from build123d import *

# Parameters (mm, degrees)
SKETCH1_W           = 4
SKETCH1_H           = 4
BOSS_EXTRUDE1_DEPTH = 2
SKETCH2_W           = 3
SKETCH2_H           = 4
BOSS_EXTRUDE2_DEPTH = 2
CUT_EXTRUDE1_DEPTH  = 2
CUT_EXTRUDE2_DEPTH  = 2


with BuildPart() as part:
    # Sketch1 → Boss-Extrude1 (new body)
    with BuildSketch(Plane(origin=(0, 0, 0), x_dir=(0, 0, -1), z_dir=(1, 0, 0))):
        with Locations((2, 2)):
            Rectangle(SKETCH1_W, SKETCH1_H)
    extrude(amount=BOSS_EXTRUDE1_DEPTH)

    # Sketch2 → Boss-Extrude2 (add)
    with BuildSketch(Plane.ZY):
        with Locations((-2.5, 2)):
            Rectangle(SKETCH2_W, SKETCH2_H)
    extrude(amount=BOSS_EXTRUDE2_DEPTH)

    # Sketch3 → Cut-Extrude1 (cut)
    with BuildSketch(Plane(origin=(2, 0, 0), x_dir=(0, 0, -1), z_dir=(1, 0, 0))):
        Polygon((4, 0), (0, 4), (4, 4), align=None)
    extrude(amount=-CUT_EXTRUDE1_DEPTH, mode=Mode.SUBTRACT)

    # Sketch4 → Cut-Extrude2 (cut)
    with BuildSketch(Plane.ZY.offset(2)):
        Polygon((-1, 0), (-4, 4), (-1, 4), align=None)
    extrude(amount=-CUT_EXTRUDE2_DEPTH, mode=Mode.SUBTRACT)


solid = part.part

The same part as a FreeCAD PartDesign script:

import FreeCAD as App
import Part
import Sketcher

doc = App.newDocument("Part")
params = doc.addObject("Spreadsheet::Sheet", "Params")
for row, (alias, value) in enumerate([
    ("sketch1_width", "4 mm"),
    ("pad1_length", "2 mm"),
    ("sketch2_width", "4 mm"),
    ("sketch2_height", "3 mm"),
    ("pad2_length", "2 mm"),
    ("sketch3_width", "4 mm"),
    ("pocket1_length", "2 mm"),
    ("sketch4_width", "4 mm"),
    ("sketch4_height", "3 mm"),
    ("pocket2_length", "2 mm"),
], start=1):
    params.set(f"A{row}", alias)
    params.set(f"B{row}", "=" + value)
    params.setAlias(f"B{row}", alias)

body = doc.addObject("PartDesign::Body", "Body")

sketch1 = doc.addObject("Sketcher::SketchObject", "Sketch")
body.addObject(sketch1)
sketch1.AttachmentSupport = (doc.YZ_Plane, [""])
sketch1.MapMode = "FlatFace"
sketch1.addGeometry([
    Part.LineSegment(App.Vector(4, 0, 0), App.Vector(0, 0, 0)),
    Part.LineSegment(App.Vector(0, 0, 0), App.Vector(0, -4, 0)),
    Part.LineSegment(App.Vector(0, -4, 0), App.Vector(4, -4, 0)),
    Part.LineSegment(App.Vector(4, -4, 0), App.Vector(4, 0, 0)),
], False)
sketch1.addConstraint([
    Sketcher.Constraint("Coincident", 0, 2, 1, 1),
    Sketcher.Constraint("Coincident", 1, 2, 2, 1),
    Sketcher.Constraint("Coincident", 2, 2, 3, 1),
    Sketcher.Constraint("Coincident", 3, 2, 0, 1),
    Sketcher.Constraint("Horizontal", 0),
    Sketcher.Constraint("Vertical", 1),
    Sketcher.Constraint("Horizontal", 2),
    Sketcher.Constraint("Vertical", 3),
    Sketcher.Constraint("Coincident", 0, 2, -1, 1),
    Sketcher.Constraint("Equal", 2, 1),
    Sketcher.Constraint("DistanceX", 0, 2, 0, 1, 4.0),
])
sketch1.setExpression("Constraints[10]", "Params.sketch1_width")
pad1 = doc.addObject("PartDesign::Pad", "Pad")
body.addObject(pad1)
pad1.Profile = sketch1
pad1.setExpression("Length", "Params.pad1_length")

sketch2 = doc.addObject("Sketcher::SketchObject", "Sketch001")
body.addObject(sketch2)
sketch2.AttachmentSupport = (doc.YZ_Plane, [""])
sketch2.MapMode = "FlatFace"
sketch2.addGeometry([
    Part.LineSegment(App.Vector(4, -4, 0), App.Vector(0, -4, 0)),
    Part.LineSegment(App.Vector(0, -4, 0), App.Vector(0, -1, 0)),
    Part.LineSegment(App.Vector(0, -1, 0), App.Vector(4, -1, 0)),
    Part.LineSegment(App.Vector(4, -1, 0), App.Vector(4, -4, 0)),
], False)
sketch2.addConstraint([
    Sketcher.Constraint("Coincident", 0, 2, 1, 1),
    Sketcher.Constraint("Coincident", 1, 2, 2, 1),
    Sketcher.Constraint("Coincident", 2, 2, 3, 1),
    Sketcher.Constraint("Coincident", 3, 2, 0, 1),
    Sketcher.Constraint("Horizontal", 0),
    Sketcher.Constraint("Vertical", 1),
    Sketcher.Constraint("Horizontal", 2),
    Sketcher.Constraint("Vertical", 3),
    Sketcher.Constraint("PointOnObject", 0, 2, -2),
    Sketcher.Constraint("DistanceX", 0, 2, 0, 1, 4.0),
    Sketcher.Constraint("DistanceY", 1, 1, 1, 2, 3.0),
    Sketcher.Constraint("DistanceY", 0, 2, -1, 1, 4.0),
])
sketch2.setExpression("Constraints[9]", "Params.sketch2_width")
sketch2.setExpression("Constraints[10]", "Params.sketch2_height")
pad2 = doc.addObject("PartDesign::Pad", "Pad001")
body.addObject(pad2)
pad2.Profile = sketch2
pad2.setExpression("Length", "Params.pad2_length")
pad2.Reversed = True

sketch3 = doc.addObject("Sketcher::SketchObject", "Sketch002")
body.addObject(sketch3)
sketch3.AttachmentSupport = (doc.YZ_Plane, [""])
sketch3.MapMode = "FlatFace"
sketch3.AttachmentOffset = App.Placement(App.Vector(0, 0, 2), App.Rotation())
sketch3.addGeometry([
    Part.LineSegment(App.Vector(4, 0, 0), App.Vector(0, -4, 0)),
    Part.LineSegment(App.Vector(0, -4, 0), App.Vector(4, -4, 0)),
    Part.LineSegment(App.Vector(4, -4, 0), App.Vector(4, 0, 0)),
], False)
sketch3.addConstraint([
    Sketcher.Constraint("Coincident", 0, 2, 1, 1),
    Sketcher.Constraint("Coincident", 1, 2, 2, 1),
    Sketcher.Constraint("Coincident", 2, 2, 0, 1),
    Sketcher.Constraint("Horizontal", 1),
    Sketcher.Constraint("Vertical", 2),
    Sketcher.Constraint("PointOnObject", 0, 2, -2),
    Sketcher.Constraint("PointOnObject", 2, 2, -1),
    Sketcher.Constraint("Equal", 1, 2),
    Sketcher.Constraint("DistanceX", 1, 1, 1, 2, 4.0),
])
sketch3.setExpression("Constraints[8]", "Params.sketch3_width")
pocket1 = doc.addObject("PartDesign::Pocket", "Pocket")
body.addObject(pocket1)
pocket1.Profile = sketch3
pocket1.setExpression("Length", "Params.pocket1_length")

sketch4 = doc.addObject("Sketcher::SketchObject", "Sketch003")
body.addObject(sketch4)
sketch4.AttachmentSupport = (doc.YZ_Plane, [""])
sketch4.MapMode = "FlatFace"
sketch4.AttachmentOffset = App.Placement(App.Vector(0, 0, -2), App.Rotation())
sketch4.addGeometry([
    Part.LineSegment(App.Vector(4, -4, 0), App.Vector(0, -1, 0)),
    Part.LineSegment(App.Vector(0, -1, 0), App.Vector(4, -1, 0)),
    Part.LineSegment(App.Vector(4, -1, 0), App.Vector(4, -4, 0)),
], False)
sketch4.addConstraint([
    Sketcher.Constraint("Coincident", 0, 2, 1, 1),
    Sketcher.Constraint("Coincident", 1, 2, 2, 1),
    Sketcher.Constraint("Coincident", 2, 2, 0, 1),
    Sketcher.Constraint("Horizontal", 1),
    Sketcher.Constraint("Vertical", 2),
    Sketcher.Constraint("PointOnObject", 0, 2, -2),
    Sketcher.Constraint("DistanceX", 1, 1, 1, 2, 4.0),
    Sketcher.Constraint("DistanceY", 2, 2, 2, 1, 3.0),
    Sketcher.Constraint("DistanceY", 0, 2, -1, 1, 1.0),
])
sketch4.setExpression("Constraints[6]", "Params.sketch4_width")
sketch4.setExpression("Constraints[7]", "Params.sketch4_height")
pocket2 = doc.addObject("PartDesign::Pocket", "Pocket001")
body.addObject(pocket2)
pocket2.Profile = sketch4
pocket2.setExpression("Length", "Params.pocket2_length")
pocket2.Reversed = True

doc.recompute()
